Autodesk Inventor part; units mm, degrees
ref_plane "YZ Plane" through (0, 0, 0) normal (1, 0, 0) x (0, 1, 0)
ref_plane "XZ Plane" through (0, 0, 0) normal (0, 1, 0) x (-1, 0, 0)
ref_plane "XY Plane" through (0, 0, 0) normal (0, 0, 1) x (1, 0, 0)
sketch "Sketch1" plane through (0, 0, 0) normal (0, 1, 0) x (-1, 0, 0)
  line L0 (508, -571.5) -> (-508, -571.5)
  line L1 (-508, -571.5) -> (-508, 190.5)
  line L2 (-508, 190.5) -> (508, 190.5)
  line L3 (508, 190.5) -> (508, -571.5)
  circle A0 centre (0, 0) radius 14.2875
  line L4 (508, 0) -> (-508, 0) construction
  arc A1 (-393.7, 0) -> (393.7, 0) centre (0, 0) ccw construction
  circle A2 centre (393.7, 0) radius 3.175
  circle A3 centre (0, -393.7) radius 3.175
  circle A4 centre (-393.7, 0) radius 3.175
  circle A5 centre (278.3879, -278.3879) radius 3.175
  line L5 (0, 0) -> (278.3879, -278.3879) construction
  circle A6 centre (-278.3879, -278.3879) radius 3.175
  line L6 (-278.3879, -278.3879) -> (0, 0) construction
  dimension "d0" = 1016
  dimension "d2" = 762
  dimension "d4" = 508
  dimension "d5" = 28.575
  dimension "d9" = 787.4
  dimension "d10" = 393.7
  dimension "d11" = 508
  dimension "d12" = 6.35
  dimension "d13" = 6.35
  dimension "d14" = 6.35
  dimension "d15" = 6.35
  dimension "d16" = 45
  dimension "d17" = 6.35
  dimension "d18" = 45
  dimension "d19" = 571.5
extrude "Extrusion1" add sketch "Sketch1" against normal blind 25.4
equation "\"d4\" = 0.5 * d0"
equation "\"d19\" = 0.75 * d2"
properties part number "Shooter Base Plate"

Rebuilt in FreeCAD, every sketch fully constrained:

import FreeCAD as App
import Part
import Sketcher
Q = App.Units.Quantity


def add_polygon(sketch, points):
    """Adds a closed chain of lines whose ends are joined by coincident constraints."""
    first, n = sketch.GeometryCount, len(points)
    for a, b in zip(points, points[1:] + points[:1]):
        sketch.addGeometry(Part.LineSegment(App.Vector(*a, 0), App.Vector(*b, 0)), False)
    for i in range(n):
        sketch.addConstraint(Sketcher.Constraint("Coincident", first + i, 2, first + (i + 1) % n, 1))

doc = App.newDocument("Part")
body = doc.addObject("PartDesign::Body", "Body")

# Sketch on XZ plane
sketch1 = body.newObject("Sketcher::SketchObject", "Sketch")
sketch1.AttachmentSupport = (doc.getObject("XZ_Plane"), [""])
sketch1.MapMode = "FlatFace"
add_polygon(sketch1, [(508, -571.5), (-508, -571.5), (-508, 190.5), (508, 190.5)])  # lines 0-3
sketch1.addGeometry(Part.Circle(App.Vector(278.4, -278.4, 0), App.Vector(0, 0, 1), 3.2), False)  # 4
sketch1.addGeometry(Part.Circle(App.Vector(0, -393.7, 0), App.Vector(0, 0, 1), 3.2), False)  # 5
sketch1.addGeometry(Part.Circle(App.Vector(-278.4, -278.4, 0), App.Vector(0, 0, 1), 3.2), False)  # 6
sketch1.addGeometry(Part.Circle(App.Vector(393.7, 0, 0), App.Vector(0, 0, 1), 3.2), False)  # 7
sketch1.addGeometry(Part.Circle(App.Vector(0, 0, 0), App.Vector(0, 0, 1), 14.3), False)  # 8
sketch1.addGeometry(Part.Circle(App.Vector(-393.7, 0, 0), App.Vector(0, 0, 1), 3.2), False)  # 9
sketch1.addConstraint([
    Sketcher.Constraint("Horizontal", 0),
    Sketcher.Constraint("Vertical", 1),
    Sketcher.Constraint("Horizontal", 2),
    Sketcher.Constraint("Vertical", 3),
    Sketcher.Constraint("Coincident", 8, 3, -1, 1),
    Sketcher.Constraint("Equal", 4, 5),
    Sketcher.Constraint("Equal", 5, 6),
    Sketcher.Constraint("Equal", 6, 7),
    Sketcher.Constraint("Equal", 7, 9),
    Sketcher.Constraint("Symmetric", 7, 3, 9, 3, -1, 1),
    Sketcher.Constraint("Symmetric", 4, 3, 6, 3, -2),
    Sketcher.Constraint("PointOnObject", 5, 3, -2),
    Sketcher.Constraint("PointOnObject", 7, 3, -1),
    Sketcher.Constraint("Diameter", 4, Q("0.25 in")),
    Sketcher.Constraint("DistanceX", 0, 2, 0, 1, Q("40 in")),
    Sketcher.Constraint("DistanceY", 1, 1, 1, 2, Q("30 in")),
    Sketcher.Constraint("Diameter", 8, Q("1.125 in")),
    Sketcher.Constraint("DistanceX", 0, 2, -1, 1, Q("20 in")),
    Sketcher.Constraint("DistanceX", 9, 3, 7, 3, Q("31 in")),
    Sketcher.Constraint("DistanceY", 5, 3, -1, 1, Q("15.5 in")),
    Sketcher.Constraint("DistanceY", 0, 2, -1, 1, Q("22.5 in")),
    Sketcher.Constraint("DistanceX", 6, 3, 4, 3, Q("21.9203 in")),
    Sketcher.Constraint("DistanceY", 4, 3, -1, 1, Q("278.388 mm")),
])
pad1 = body.newObject("PartDesign::Pad", "Pad")
pad1.Profile = sketch1
pad1.Length = Q("1 in")

doc.recompute()
